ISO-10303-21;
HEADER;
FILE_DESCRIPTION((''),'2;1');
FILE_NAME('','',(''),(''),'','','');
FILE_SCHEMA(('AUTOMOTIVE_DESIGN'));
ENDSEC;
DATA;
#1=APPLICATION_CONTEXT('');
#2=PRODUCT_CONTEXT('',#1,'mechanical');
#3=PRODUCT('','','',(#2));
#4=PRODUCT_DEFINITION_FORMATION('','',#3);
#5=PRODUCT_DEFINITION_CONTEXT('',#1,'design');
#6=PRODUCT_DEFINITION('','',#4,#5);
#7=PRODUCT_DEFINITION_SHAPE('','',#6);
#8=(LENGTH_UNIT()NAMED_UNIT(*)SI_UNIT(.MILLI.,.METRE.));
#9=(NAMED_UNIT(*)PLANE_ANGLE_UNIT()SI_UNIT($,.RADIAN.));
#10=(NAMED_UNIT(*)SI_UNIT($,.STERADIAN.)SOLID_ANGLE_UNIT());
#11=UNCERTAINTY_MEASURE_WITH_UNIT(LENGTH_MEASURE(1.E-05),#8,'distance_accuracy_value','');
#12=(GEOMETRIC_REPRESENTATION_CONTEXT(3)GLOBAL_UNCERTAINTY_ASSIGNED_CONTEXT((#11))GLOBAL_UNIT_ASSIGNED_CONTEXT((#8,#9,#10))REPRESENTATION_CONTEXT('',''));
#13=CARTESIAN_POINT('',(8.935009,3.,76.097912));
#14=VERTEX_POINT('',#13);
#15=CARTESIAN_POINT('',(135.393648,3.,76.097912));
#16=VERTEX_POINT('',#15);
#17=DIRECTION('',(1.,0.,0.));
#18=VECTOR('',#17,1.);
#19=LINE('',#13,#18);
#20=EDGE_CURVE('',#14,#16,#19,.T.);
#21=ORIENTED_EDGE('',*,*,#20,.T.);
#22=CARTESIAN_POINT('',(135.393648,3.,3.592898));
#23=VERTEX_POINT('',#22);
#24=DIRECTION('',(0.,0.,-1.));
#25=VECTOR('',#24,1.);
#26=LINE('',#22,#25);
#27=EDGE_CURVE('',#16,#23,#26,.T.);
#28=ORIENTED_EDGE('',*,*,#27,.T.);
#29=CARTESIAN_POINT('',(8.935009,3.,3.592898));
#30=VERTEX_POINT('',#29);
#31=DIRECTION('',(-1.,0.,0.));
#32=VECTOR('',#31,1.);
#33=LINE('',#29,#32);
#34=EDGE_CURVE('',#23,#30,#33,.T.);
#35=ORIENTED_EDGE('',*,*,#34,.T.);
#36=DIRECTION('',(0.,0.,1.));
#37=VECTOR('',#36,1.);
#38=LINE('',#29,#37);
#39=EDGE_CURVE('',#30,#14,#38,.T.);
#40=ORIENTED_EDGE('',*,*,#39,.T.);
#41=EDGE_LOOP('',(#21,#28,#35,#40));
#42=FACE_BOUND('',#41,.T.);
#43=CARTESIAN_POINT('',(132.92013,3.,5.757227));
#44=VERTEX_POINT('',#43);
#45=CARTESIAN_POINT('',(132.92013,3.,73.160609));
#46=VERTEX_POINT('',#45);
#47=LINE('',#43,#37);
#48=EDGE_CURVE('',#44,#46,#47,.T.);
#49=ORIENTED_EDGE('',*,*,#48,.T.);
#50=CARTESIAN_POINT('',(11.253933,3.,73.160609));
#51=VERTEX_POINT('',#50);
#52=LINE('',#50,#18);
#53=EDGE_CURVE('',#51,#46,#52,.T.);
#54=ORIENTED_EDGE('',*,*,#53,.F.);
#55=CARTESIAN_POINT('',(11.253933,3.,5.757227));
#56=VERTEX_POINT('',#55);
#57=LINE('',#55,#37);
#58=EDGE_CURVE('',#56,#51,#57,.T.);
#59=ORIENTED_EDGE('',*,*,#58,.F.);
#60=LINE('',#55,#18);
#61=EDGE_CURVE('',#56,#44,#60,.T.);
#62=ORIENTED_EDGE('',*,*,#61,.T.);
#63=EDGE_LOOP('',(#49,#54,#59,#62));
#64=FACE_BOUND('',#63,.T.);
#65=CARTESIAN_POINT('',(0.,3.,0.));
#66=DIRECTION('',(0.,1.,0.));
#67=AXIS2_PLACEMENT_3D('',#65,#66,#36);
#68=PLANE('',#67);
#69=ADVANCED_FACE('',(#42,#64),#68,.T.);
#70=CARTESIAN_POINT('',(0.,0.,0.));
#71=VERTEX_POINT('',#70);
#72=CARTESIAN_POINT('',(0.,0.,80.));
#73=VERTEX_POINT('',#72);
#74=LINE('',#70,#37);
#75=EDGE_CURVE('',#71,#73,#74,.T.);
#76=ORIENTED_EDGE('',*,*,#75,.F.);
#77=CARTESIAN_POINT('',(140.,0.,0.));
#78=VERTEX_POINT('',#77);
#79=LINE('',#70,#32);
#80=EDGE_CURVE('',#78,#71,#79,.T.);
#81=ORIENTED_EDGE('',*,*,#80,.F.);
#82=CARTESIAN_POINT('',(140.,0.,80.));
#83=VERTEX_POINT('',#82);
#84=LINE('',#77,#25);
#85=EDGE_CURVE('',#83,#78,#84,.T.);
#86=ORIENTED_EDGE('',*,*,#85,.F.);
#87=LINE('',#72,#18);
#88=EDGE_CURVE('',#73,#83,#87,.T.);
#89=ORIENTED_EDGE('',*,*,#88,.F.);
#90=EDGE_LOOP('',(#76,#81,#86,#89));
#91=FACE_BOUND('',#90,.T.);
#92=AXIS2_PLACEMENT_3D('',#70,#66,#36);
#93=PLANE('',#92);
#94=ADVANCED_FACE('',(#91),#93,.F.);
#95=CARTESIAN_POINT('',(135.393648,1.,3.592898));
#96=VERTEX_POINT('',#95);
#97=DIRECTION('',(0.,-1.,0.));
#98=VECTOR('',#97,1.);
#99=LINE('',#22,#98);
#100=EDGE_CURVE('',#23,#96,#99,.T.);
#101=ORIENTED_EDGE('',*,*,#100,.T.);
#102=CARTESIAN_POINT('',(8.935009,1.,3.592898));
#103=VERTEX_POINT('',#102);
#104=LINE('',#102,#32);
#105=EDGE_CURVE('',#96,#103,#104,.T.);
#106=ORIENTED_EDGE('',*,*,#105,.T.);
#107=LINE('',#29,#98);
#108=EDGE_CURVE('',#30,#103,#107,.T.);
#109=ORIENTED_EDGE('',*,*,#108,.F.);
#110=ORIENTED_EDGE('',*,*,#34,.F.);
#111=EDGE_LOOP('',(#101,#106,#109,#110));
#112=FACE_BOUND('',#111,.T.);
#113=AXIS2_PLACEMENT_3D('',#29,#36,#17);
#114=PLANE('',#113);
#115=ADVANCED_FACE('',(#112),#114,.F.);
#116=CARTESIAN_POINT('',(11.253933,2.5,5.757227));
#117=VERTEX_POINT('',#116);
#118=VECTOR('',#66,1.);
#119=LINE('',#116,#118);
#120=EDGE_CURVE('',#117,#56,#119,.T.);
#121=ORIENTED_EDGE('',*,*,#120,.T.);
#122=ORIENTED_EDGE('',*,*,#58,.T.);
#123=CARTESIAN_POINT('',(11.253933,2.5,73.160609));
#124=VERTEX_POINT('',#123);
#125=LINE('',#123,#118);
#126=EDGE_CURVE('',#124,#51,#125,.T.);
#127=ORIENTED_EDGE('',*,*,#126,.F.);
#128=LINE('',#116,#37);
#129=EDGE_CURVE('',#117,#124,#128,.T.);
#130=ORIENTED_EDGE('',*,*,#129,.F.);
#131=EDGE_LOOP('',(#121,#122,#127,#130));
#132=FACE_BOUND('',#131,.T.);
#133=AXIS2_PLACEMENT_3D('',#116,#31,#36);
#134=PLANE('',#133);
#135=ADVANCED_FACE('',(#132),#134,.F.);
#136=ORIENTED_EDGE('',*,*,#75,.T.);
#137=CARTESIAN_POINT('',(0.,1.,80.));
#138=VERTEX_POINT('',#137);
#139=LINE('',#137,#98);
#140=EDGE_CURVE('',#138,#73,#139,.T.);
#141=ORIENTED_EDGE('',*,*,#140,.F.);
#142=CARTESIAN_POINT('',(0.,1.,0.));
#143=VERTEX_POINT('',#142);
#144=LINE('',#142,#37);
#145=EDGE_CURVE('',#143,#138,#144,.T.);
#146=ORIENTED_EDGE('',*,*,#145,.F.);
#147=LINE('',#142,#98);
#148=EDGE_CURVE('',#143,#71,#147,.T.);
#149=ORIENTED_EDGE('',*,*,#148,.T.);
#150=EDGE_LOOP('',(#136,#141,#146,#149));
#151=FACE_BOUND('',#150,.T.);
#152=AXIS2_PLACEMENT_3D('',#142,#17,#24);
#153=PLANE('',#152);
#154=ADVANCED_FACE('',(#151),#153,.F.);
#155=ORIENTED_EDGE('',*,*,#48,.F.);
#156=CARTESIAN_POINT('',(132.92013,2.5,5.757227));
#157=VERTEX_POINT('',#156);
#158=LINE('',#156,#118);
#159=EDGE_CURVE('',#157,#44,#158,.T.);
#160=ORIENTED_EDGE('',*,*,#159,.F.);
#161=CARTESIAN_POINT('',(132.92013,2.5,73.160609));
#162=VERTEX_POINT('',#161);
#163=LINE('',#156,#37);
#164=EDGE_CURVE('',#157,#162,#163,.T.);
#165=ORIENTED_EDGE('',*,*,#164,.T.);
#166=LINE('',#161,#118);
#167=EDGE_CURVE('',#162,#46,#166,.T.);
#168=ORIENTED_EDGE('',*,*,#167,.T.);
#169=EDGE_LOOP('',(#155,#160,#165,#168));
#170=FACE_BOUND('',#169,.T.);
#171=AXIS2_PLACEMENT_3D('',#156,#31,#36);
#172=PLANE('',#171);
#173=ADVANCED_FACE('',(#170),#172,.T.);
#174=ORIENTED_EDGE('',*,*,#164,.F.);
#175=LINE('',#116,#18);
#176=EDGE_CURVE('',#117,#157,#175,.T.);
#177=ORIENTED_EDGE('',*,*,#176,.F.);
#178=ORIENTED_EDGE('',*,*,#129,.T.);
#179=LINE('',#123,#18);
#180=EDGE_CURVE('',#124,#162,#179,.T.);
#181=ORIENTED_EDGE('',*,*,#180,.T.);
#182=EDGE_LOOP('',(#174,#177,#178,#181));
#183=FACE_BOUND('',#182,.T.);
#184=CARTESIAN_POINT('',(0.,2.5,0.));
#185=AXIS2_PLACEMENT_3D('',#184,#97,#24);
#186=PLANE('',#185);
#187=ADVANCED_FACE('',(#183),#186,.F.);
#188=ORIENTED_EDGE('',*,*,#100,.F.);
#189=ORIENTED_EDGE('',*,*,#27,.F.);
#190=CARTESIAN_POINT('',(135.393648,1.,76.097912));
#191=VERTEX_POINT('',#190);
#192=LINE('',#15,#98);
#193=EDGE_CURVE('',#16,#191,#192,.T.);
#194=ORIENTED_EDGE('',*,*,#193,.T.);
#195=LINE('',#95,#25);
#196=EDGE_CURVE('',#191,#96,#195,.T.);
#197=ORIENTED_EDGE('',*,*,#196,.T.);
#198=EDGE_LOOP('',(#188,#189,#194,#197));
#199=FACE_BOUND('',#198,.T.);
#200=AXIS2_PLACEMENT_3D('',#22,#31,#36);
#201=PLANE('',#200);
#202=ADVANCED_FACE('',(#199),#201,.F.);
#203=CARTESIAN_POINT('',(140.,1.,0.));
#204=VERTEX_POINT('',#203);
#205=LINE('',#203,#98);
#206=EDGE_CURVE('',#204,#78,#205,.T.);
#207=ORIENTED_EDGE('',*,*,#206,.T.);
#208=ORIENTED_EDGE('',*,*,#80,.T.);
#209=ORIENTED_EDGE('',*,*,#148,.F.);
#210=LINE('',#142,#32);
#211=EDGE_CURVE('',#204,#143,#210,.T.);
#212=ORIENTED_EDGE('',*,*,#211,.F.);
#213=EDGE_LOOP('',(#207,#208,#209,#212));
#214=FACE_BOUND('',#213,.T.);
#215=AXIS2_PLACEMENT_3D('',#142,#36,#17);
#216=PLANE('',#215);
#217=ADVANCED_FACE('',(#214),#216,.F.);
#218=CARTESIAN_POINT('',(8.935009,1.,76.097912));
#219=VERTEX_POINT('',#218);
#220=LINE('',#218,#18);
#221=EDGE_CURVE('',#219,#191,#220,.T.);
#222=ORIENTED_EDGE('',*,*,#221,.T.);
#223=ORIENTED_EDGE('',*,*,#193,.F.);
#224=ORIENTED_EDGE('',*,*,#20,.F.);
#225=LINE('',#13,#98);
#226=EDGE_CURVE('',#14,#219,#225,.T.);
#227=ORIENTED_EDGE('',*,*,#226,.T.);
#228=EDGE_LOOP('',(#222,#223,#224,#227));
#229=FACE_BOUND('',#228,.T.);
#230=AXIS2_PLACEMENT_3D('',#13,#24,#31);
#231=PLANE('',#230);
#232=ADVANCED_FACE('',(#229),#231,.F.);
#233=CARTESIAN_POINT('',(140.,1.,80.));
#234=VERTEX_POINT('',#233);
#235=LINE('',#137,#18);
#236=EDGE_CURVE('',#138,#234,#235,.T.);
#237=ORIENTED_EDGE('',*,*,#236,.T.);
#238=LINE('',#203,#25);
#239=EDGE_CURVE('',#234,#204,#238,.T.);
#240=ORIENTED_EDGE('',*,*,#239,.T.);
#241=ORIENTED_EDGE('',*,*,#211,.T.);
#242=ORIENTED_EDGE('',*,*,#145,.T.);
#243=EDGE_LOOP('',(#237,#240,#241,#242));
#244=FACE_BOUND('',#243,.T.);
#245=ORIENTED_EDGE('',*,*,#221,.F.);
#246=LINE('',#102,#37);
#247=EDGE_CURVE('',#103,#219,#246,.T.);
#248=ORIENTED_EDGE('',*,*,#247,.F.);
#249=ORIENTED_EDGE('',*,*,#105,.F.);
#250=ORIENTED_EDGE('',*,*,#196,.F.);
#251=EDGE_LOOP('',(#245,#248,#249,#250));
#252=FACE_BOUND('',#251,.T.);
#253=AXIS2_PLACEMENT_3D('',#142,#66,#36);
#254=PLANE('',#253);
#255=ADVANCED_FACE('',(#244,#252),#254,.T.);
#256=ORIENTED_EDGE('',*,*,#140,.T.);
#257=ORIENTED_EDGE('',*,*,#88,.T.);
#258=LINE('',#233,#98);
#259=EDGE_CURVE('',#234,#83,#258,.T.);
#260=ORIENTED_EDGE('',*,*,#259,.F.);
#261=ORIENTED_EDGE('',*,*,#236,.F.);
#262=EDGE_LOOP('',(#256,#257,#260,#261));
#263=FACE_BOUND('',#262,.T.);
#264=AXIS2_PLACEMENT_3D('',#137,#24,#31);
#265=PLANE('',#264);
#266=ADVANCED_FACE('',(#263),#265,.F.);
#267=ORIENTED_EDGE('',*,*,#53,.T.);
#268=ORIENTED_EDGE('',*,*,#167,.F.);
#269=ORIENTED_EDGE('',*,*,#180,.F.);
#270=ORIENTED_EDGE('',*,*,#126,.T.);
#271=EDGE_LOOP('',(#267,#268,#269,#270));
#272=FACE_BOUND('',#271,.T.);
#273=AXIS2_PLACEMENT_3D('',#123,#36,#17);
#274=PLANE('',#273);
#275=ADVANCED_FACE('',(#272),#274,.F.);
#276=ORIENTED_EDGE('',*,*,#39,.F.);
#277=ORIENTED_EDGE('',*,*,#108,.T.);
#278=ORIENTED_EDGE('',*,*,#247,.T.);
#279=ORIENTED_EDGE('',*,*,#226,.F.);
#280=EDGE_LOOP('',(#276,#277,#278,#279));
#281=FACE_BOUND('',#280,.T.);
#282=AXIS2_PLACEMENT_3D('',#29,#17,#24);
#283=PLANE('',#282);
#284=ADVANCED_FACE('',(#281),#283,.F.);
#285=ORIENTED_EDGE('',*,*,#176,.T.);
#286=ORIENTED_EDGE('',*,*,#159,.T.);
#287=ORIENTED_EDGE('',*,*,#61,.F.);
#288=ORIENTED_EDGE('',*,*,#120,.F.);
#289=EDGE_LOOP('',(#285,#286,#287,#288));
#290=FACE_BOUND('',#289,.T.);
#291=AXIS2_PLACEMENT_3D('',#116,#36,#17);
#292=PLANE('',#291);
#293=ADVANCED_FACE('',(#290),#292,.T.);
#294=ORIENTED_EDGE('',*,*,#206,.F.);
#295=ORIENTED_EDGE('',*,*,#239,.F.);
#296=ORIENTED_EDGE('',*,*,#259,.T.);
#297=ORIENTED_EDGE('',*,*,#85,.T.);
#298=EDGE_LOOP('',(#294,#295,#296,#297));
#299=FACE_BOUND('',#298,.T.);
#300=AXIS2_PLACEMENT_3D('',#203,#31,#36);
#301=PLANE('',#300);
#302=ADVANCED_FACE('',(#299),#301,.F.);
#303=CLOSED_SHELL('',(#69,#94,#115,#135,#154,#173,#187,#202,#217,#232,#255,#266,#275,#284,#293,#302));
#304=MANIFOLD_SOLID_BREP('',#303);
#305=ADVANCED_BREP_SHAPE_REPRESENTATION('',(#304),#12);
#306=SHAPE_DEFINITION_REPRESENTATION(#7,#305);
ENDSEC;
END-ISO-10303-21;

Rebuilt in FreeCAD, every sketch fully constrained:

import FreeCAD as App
import Part
import Sketcher
from FreeCAD import Vector


def add_polygon(sketch, points):
    """Adds a closed chain of lines whose ends are joined by coincident constraints."""
    first, n = sketch.GeometryCount, len(points)
    for a, b in zip(points, points[1:] + points[:1]):
        sketch.addGeometry(Part.LineSegment(App.Vector(*a, 0), App.Vector(*b, 0)), False)
    for i in range(n):
        sketch.addConstraint(Sketcher.Constraint("Coincident", first + i, 2, first + (i + 1) % n, 1))

doc = App.newDocument("Part")
params = doc.addObject("Spreadsheet::Sheet", "Params")
for row, (alias, value) in enumerate([
    ("sketch1_width", "140 mm"),
    ("sketch1_height", "80 mm"),
    ("pad1_length", "1 mm"),
    ("pad2_length", "2 mm"),
    ("pocket1_length", "0.5 mm"),
], start=1):
    params.set(f"A{row}", alias)
    params.set(f"B{row}", "=" + value)
    params.setAlias(f"B{row}", alias)

body = doc.addObject("PartDesign::Body", "Body")

# Sketch on XZ plane
sketch1 = body.newObject("Sketcher::SketchObject", "Sketch")
sketch1.AttachmentSupport = (doc.getObject("XZ_Plane"), [""])
sketch1.MapMode = "FlatFace"
add_polygon(sketch1, [(0, 0), (0, 80), (140, 80), (140, 0)])  # lines 0-3
sketch1.addConstraint(Sketcher.Constraint("Vertical", 0))
sketch1.addConstraint(Sketcher.Constraint("Horizontal", 1))
sketch1.addConstraint(Sketcher.Constraint("Vertical", 2))
sketch1.addConstraint(Sketcher.Constraint("Horizontal", 3))
sketch1.addConstraint(Sketcher.Constraint("Coincident", 3, 2, -1, 1))
sketch1.addConstraint(Sketcher.Constraint("DistanceX", 1, 1, 1, 2, 140.0))
sketch1.addConstraint(Sketcher.Constraint("DistanceY", 0, 1, 0, 2, 80.0))
sketch1.setExpression("Constraints[9]", "Params.sketch1_width")
sketch1.setExpression("Constraints[10]", "Params.sketch1_height")
pad1 = body.newObject("PartDesign::Pad", "Pad")
pad1.Profile = sketch1
pad1.setExpression("Length", "Params.pad1_length")
pad1.Reversed = True

# Sketch on XZ plane
sketch2 = body.newObject("Sketcher::SketchObject", "Sketch001")
sketch2.AttachmentSupport = (doc.getObject("XZ_Plane"), [""])
sketch2.MapMode = "FlatFace"
sketch2.AttachmentOffset = App.Placement(Vector(0, 0, -1), App.Rotation())
add_polygon(sketch2, [(9, 4), (9, 76), (135, 76), (135, 4)])  # lines 0-3
sketch2.addConstraint(Sketcher.Constraint("Vertical", 0))
sketch2.addConstraint(Sketcher.Constraint("Horizontal", 1))
sketch2.addConstraint(Sketcher.Constraint("Vertical", 2))
sketch2.addConstraint(Sketcher.Constraint("Horizontal", 3))
sketch2.addConstraint(Sketcher.Constraint("DistanceX", 1, 1, 1, 2, 126.458639))
sketch2.addConstraint(Sketcher.Constraint("DistanceY", 0, 1, 0, 2, 72.505014))
sketch2.addConstraint(Sketcher.Constraint("DistanceX", -1, 1, 0, 2, 8.935009))
sketch2.addConstraint(Sketcher.Constraint("DistanceY", -1, 1, 0, 2, 76.097912))
pad2 = body.newObject("PartDesign::Pad", "Pad001")
pad2.Profile = sketch2
pad2.setExpression("Length", "Params.pad2_length")
pad2.Reversed = True

# Sketch on XZ plane
sketch3 = body.newObject("Sketcher::SketchObject", "Sketch002")
sketch3.AttachmentSupport = (doc.getObject("XZ_Plane"), [""])
sketch3.MapMode = "FlatFace"
sketch3.AttachmentOffset = App.Placement(Vector(0, 0, -3), App.Rotation())
add_polygon(sketch3, [(11, 6), (11, 73), (133, 73), (133, 6)])  # lines 0-3
sketch3.addConstraint(Sketcher.Constraint("Vertical", 0))
sketch3.addConstraint(Sketcher.Constraint("Horizontal", 1))
sketch3.addConstraint(Sketcher.Constraint("Vertical", 2))
sketch3.addConstraint(Sketcher.Constraint("Horizontal", 3))
sketch3.addConstraint(Sketcher.Constraint("DistanceX", 1, 1, 1, 2, 121.666197))
sketch3.addConstraint(Sketcher.Constraint("DistanceY", 0, 1, 0, 2, 67.403382))
sketch3.addConstraint(Sketcher.Constraint("DistanceY", -1, 1, 0, 2, 73.160609))
sketch3.addConstraint(Sketcher.Constraint("DistanceX", -1, 1, 1, 2, 132.92013))
pocket1 = body.newObject("PartDesign::Pocket", "Pocket")
pocket1.Profile = sketch3
pocket1.setExpression("Length", "Params.pocket1_length")
pocket1.Reversed = True

doc.recompute()
